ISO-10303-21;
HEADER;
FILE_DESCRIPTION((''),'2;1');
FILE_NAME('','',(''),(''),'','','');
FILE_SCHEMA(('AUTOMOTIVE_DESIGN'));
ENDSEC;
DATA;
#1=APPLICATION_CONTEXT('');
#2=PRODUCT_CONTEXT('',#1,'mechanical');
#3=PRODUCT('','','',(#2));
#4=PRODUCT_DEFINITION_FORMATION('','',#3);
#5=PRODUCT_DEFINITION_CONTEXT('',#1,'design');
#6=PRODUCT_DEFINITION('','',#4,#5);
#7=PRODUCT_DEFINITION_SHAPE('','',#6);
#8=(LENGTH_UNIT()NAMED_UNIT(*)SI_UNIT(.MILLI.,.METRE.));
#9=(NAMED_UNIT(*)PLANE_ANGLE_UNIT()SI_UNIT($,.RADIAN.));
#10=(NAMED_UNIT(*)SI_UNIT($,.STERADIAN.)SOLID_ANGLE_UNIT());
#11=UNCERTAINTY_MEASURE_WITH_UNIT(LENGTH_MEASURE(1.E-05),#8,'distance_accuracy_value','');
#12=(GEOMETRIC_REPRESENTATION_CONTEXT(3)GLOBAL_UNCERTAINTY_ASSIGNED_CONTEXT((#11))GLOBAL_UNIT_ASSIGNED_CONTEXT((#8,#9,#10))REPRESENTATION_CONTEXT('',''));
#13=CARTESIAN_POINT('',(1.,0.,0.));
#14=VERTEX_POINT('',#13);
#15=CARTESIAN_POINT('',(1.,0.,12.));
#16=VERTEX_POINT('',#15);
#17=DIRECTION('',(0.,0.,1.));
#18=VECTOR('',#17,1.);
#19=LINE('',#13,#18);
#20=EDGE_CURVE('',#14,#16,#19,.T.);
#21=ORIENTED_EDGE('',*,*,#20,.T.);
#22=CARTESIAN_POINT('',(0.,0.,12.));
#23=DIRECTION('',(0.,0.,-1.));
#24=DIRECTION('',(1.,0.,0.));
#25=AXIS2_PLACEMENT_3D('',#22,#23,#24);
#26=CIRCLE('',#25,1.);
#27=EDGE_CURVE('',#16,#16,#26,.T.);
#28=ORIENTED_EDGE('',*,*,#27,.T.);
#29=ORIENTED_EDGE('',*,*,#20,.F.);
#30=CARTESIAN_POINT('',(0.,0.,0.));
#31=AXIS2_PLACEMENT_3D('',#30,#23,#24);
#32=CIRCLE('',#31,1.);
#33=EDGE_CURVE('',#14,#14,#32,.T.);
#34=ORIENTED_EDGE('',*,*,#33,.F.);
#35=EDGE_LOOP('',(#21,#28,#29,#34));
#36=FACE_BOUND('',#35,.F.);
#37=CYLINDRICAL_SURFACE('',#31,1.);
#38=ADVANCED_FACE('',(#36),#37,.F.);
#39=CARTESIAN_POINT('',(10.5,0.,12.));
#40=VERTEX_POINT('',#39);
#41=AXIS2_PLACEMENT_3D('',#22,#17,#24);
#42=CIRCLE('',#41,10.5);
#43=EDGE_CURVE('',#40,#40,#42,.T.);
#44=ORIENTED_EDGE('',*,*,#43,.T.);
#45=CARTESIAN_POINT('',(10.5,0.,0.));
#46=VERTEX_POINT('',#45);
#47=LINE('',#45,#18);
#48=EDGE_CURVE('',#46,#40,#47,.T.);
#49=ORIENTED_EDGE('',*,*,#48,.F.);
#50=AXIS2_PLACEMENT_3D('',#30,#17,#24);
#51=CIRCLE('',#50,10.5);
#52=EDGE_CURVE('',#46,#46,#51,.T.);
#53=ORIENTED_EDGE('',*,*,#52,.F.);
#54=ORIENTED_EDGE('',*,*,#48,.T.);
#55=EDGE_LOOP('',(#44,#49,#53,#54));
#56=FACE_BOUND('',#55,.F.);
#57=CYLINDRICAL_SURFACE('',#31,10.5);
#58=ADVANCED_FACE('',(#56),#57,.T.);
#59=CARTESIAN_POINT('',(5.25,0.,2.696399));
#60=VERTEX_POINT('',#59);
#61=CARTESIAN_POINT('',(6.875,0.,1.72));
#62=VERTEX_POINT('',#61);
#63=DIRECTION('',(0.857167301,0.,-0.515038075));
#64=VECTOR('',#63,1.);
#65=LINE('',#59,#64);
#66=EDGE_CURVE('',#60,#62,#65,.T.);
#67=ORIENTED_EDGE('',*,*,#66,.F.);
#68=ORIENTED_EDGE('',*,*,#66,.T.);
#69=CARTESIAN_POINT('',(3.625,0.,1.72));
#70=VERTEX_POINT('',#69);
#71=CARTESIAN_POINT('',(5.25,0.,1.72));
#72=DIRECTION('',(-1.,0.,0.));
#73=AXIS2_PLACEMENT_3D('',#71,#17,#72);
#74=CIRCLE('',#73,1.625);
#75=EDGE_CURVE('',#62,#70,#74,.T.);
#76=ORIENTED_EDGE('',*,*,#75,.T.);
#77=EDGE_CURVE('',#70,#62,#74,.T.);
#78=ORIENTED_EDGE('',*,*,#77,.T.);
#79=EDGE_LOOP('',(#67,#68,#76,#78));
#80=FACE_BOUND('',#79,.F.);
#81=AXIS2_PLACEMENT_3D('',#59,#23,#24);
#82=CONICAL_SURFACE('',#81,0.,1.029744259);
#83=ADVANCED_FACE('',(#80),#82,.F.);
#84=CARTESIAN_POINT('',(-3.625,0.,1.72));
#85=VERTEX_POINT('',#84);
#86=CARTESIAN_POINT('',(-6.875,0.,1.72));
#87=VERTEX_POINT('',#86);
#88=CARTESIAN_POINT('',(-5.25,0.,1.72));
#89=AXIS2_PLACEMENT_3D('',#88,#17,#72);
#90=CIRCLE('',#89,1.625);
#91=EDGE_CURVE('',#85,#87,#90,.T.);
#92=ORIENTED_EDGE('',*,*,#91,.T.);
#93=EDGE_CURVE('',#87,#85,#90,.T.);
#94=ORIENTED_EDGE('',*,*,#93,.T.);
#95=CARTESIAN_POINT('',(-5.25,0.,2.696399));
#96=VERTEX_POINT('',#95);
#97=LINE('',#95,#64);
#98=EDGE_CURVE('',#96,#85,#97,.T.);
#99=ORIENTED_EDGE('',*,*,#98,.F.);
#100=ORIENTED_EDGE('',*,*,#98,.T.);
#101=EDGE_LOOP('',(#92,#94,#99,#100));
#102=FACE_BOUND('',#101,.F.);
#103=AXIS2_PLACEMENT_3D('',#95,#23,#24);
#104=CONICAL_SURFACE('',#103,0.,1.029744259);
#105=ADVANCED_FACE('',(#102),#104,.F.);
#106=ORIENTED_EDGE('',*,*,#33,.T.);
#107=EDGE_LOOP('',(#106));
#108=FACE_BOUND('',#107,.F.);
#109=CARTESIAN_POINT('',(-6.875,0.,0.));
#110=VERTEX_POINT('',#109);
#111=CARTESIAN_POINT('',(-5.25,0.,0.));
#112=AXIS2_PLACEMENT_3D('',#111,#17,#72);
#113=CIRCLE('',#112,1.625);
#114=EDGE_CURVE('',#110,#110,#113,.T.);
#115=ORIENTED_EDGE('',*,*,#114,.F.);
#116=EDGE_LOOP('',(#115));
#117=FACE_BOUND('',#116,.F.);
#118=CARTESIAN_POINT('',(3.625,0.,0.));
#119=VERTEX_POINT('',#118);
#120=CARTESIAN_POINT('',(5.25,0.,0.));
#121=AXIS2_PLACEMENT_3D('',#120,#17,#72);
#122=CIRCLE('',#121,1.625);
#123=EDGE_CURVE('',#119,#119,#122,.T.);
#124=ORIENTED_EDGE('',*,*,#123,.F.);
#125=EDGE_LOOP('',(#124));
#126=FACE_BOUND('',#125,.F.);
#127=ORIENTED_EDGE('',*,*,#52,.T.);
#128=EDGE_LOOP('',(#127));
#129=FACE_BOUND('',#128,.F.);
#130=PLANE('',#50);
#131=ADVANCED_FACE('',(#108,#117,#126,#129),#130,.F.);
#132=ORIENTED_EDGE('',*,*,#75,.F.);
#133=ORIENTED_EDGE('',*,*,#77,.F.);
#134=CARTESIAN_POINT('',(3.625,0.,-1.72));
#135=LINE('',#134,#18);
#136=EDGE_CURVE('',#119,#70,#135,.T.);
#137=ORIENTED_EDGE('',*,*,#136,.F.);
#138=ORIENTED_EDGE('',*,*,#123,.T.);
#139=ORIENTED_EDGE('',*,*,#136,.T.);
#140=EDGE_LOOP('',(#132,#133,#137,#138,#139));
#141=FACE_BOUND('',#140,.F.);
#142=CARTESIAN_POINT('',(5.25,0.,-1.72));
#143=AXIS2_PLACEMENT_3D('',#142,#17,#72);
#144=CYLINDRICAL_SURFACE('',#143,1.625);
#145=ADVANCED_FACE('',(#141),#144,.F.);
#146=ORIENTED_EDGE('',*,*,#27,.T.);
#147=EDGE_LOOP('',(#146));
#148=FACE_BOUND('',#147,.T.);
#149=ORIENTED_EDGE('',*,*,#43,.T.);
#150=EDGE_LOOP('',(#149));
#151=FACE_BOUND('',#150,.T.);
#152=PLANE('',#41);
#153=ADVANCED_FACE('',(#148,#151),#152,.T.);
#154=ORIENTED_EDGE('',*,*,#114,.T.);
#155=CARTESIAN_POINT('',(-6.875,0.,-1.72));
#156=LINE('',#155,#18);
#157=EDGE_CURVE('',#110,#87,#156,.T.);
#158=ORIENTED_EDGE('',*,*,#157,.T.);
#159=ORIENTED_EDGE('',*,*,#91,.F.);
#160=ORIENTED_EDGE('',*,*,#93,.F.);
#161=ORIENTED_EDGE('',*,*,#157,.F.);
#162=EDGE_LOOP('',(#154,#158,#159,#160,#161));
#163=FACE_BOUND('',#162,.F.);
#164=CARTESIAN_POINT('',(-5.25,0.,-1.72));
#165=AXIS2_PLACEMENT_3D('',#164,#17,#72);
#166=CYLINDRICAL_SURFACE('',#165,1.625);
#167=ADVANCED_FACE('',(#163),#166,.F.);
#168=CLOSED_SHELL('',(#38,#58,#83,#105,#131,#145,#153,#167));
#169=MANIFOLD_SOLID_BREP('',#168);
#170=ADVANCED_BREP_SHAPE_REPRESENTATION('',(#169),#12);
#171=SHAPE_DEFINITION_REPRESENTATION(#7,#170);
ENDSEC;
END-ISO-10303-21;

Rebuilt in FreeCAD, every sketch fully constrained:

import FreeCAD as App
import Part
import Sketcher
Q = App.Units.Quantity

doc = App.newDocument("Part")
body = doc.addObject("PartDesign::Body", "Body")

sketch1 = doc.addObject("Sketcher::SketchObject", "Sketch")
body.addObject(sketch1)
sketch1.AttachmentSupport = (doc.XY_Plane, [""])
sketch1.MapMode = "FlatFace"
sketch1.addGeometry(Part.Circle(App.Vector(0, 0, 0), App.Vector(0, 0, 1), 10.5), False)
sketch1.addGeometry(Part.Circle(App.Vector(0, 0, 0), App.Vector(0, 0, 1), 1), False)
sketch1.addConstraint(Sketcher.Constraint("Coincident", 0, 3, -1, 1))
sketch1.addConstraint(Sketcher.Constraint("Coincident", 1, 3, -1, 1))
sketch1.addConstraint(Sketcher.Constraint("Diameter", 0, Q("21 mm")))
sketch1.addConstraint(Sketcher.Constraint("Diameter", 1, Q("2 mm")))
pad1 = doc.addObject("PartDesign::Pad", "Pad")
body.addObject(pad1)
pad1.Profile = sketch1
pad1.Length = 12

sketch2 = doc.addObject("Sketcher::SketchObject", "Sketch001")
body.addObject(sketch2)
sketch2.AttachmentSupport = (doc.XY_Plane, [""])
sketch2.MapMode = "FlatFace"
sketch2.addGeometry(Part.Circle(App.Vector(-5.2, 0, 0), App.Vector(0, 0, 1), 1.6), False)
sketch2.addGeometry(Part.Circle(App.Vector(5.2, 0, 0), App.Vector(0, 0, 1), 1.6), False)
sketch2.addConstraint(Sketcher.Constraint("Equal", 0, 1))
sketch2.addConstraint(Sketcher.Constraint("Symmetric", 0, 3, 1, 3, -1, 1))
sketch2.addConstraint(Sketcher.Constraint("PointOnObject", 0, 3, -1))
sketch2.addConstraint(Sketcher.Constraint("Diameter", 0, Q("3.25 mm")))
sketch2.addConstraint(Sketcher.Constraint("DistanceX", 0, 3, 1, 3, Q("10.5 mm")))
doc.recompute()
hole = doc.addObject("PartDesign::Hole", "Hole")
body.addObject(hole)
hole.Profile = sketch2
hole.ThreadType = "None"
hole.Diameter = 3.25
hole.DepthType = "Dimension"
hole.Depth = 1.72
hole.DrillPoint = "Angled"
hole.DrillPointAngle = 118
hole.Reversed = True

doc.recompute()
